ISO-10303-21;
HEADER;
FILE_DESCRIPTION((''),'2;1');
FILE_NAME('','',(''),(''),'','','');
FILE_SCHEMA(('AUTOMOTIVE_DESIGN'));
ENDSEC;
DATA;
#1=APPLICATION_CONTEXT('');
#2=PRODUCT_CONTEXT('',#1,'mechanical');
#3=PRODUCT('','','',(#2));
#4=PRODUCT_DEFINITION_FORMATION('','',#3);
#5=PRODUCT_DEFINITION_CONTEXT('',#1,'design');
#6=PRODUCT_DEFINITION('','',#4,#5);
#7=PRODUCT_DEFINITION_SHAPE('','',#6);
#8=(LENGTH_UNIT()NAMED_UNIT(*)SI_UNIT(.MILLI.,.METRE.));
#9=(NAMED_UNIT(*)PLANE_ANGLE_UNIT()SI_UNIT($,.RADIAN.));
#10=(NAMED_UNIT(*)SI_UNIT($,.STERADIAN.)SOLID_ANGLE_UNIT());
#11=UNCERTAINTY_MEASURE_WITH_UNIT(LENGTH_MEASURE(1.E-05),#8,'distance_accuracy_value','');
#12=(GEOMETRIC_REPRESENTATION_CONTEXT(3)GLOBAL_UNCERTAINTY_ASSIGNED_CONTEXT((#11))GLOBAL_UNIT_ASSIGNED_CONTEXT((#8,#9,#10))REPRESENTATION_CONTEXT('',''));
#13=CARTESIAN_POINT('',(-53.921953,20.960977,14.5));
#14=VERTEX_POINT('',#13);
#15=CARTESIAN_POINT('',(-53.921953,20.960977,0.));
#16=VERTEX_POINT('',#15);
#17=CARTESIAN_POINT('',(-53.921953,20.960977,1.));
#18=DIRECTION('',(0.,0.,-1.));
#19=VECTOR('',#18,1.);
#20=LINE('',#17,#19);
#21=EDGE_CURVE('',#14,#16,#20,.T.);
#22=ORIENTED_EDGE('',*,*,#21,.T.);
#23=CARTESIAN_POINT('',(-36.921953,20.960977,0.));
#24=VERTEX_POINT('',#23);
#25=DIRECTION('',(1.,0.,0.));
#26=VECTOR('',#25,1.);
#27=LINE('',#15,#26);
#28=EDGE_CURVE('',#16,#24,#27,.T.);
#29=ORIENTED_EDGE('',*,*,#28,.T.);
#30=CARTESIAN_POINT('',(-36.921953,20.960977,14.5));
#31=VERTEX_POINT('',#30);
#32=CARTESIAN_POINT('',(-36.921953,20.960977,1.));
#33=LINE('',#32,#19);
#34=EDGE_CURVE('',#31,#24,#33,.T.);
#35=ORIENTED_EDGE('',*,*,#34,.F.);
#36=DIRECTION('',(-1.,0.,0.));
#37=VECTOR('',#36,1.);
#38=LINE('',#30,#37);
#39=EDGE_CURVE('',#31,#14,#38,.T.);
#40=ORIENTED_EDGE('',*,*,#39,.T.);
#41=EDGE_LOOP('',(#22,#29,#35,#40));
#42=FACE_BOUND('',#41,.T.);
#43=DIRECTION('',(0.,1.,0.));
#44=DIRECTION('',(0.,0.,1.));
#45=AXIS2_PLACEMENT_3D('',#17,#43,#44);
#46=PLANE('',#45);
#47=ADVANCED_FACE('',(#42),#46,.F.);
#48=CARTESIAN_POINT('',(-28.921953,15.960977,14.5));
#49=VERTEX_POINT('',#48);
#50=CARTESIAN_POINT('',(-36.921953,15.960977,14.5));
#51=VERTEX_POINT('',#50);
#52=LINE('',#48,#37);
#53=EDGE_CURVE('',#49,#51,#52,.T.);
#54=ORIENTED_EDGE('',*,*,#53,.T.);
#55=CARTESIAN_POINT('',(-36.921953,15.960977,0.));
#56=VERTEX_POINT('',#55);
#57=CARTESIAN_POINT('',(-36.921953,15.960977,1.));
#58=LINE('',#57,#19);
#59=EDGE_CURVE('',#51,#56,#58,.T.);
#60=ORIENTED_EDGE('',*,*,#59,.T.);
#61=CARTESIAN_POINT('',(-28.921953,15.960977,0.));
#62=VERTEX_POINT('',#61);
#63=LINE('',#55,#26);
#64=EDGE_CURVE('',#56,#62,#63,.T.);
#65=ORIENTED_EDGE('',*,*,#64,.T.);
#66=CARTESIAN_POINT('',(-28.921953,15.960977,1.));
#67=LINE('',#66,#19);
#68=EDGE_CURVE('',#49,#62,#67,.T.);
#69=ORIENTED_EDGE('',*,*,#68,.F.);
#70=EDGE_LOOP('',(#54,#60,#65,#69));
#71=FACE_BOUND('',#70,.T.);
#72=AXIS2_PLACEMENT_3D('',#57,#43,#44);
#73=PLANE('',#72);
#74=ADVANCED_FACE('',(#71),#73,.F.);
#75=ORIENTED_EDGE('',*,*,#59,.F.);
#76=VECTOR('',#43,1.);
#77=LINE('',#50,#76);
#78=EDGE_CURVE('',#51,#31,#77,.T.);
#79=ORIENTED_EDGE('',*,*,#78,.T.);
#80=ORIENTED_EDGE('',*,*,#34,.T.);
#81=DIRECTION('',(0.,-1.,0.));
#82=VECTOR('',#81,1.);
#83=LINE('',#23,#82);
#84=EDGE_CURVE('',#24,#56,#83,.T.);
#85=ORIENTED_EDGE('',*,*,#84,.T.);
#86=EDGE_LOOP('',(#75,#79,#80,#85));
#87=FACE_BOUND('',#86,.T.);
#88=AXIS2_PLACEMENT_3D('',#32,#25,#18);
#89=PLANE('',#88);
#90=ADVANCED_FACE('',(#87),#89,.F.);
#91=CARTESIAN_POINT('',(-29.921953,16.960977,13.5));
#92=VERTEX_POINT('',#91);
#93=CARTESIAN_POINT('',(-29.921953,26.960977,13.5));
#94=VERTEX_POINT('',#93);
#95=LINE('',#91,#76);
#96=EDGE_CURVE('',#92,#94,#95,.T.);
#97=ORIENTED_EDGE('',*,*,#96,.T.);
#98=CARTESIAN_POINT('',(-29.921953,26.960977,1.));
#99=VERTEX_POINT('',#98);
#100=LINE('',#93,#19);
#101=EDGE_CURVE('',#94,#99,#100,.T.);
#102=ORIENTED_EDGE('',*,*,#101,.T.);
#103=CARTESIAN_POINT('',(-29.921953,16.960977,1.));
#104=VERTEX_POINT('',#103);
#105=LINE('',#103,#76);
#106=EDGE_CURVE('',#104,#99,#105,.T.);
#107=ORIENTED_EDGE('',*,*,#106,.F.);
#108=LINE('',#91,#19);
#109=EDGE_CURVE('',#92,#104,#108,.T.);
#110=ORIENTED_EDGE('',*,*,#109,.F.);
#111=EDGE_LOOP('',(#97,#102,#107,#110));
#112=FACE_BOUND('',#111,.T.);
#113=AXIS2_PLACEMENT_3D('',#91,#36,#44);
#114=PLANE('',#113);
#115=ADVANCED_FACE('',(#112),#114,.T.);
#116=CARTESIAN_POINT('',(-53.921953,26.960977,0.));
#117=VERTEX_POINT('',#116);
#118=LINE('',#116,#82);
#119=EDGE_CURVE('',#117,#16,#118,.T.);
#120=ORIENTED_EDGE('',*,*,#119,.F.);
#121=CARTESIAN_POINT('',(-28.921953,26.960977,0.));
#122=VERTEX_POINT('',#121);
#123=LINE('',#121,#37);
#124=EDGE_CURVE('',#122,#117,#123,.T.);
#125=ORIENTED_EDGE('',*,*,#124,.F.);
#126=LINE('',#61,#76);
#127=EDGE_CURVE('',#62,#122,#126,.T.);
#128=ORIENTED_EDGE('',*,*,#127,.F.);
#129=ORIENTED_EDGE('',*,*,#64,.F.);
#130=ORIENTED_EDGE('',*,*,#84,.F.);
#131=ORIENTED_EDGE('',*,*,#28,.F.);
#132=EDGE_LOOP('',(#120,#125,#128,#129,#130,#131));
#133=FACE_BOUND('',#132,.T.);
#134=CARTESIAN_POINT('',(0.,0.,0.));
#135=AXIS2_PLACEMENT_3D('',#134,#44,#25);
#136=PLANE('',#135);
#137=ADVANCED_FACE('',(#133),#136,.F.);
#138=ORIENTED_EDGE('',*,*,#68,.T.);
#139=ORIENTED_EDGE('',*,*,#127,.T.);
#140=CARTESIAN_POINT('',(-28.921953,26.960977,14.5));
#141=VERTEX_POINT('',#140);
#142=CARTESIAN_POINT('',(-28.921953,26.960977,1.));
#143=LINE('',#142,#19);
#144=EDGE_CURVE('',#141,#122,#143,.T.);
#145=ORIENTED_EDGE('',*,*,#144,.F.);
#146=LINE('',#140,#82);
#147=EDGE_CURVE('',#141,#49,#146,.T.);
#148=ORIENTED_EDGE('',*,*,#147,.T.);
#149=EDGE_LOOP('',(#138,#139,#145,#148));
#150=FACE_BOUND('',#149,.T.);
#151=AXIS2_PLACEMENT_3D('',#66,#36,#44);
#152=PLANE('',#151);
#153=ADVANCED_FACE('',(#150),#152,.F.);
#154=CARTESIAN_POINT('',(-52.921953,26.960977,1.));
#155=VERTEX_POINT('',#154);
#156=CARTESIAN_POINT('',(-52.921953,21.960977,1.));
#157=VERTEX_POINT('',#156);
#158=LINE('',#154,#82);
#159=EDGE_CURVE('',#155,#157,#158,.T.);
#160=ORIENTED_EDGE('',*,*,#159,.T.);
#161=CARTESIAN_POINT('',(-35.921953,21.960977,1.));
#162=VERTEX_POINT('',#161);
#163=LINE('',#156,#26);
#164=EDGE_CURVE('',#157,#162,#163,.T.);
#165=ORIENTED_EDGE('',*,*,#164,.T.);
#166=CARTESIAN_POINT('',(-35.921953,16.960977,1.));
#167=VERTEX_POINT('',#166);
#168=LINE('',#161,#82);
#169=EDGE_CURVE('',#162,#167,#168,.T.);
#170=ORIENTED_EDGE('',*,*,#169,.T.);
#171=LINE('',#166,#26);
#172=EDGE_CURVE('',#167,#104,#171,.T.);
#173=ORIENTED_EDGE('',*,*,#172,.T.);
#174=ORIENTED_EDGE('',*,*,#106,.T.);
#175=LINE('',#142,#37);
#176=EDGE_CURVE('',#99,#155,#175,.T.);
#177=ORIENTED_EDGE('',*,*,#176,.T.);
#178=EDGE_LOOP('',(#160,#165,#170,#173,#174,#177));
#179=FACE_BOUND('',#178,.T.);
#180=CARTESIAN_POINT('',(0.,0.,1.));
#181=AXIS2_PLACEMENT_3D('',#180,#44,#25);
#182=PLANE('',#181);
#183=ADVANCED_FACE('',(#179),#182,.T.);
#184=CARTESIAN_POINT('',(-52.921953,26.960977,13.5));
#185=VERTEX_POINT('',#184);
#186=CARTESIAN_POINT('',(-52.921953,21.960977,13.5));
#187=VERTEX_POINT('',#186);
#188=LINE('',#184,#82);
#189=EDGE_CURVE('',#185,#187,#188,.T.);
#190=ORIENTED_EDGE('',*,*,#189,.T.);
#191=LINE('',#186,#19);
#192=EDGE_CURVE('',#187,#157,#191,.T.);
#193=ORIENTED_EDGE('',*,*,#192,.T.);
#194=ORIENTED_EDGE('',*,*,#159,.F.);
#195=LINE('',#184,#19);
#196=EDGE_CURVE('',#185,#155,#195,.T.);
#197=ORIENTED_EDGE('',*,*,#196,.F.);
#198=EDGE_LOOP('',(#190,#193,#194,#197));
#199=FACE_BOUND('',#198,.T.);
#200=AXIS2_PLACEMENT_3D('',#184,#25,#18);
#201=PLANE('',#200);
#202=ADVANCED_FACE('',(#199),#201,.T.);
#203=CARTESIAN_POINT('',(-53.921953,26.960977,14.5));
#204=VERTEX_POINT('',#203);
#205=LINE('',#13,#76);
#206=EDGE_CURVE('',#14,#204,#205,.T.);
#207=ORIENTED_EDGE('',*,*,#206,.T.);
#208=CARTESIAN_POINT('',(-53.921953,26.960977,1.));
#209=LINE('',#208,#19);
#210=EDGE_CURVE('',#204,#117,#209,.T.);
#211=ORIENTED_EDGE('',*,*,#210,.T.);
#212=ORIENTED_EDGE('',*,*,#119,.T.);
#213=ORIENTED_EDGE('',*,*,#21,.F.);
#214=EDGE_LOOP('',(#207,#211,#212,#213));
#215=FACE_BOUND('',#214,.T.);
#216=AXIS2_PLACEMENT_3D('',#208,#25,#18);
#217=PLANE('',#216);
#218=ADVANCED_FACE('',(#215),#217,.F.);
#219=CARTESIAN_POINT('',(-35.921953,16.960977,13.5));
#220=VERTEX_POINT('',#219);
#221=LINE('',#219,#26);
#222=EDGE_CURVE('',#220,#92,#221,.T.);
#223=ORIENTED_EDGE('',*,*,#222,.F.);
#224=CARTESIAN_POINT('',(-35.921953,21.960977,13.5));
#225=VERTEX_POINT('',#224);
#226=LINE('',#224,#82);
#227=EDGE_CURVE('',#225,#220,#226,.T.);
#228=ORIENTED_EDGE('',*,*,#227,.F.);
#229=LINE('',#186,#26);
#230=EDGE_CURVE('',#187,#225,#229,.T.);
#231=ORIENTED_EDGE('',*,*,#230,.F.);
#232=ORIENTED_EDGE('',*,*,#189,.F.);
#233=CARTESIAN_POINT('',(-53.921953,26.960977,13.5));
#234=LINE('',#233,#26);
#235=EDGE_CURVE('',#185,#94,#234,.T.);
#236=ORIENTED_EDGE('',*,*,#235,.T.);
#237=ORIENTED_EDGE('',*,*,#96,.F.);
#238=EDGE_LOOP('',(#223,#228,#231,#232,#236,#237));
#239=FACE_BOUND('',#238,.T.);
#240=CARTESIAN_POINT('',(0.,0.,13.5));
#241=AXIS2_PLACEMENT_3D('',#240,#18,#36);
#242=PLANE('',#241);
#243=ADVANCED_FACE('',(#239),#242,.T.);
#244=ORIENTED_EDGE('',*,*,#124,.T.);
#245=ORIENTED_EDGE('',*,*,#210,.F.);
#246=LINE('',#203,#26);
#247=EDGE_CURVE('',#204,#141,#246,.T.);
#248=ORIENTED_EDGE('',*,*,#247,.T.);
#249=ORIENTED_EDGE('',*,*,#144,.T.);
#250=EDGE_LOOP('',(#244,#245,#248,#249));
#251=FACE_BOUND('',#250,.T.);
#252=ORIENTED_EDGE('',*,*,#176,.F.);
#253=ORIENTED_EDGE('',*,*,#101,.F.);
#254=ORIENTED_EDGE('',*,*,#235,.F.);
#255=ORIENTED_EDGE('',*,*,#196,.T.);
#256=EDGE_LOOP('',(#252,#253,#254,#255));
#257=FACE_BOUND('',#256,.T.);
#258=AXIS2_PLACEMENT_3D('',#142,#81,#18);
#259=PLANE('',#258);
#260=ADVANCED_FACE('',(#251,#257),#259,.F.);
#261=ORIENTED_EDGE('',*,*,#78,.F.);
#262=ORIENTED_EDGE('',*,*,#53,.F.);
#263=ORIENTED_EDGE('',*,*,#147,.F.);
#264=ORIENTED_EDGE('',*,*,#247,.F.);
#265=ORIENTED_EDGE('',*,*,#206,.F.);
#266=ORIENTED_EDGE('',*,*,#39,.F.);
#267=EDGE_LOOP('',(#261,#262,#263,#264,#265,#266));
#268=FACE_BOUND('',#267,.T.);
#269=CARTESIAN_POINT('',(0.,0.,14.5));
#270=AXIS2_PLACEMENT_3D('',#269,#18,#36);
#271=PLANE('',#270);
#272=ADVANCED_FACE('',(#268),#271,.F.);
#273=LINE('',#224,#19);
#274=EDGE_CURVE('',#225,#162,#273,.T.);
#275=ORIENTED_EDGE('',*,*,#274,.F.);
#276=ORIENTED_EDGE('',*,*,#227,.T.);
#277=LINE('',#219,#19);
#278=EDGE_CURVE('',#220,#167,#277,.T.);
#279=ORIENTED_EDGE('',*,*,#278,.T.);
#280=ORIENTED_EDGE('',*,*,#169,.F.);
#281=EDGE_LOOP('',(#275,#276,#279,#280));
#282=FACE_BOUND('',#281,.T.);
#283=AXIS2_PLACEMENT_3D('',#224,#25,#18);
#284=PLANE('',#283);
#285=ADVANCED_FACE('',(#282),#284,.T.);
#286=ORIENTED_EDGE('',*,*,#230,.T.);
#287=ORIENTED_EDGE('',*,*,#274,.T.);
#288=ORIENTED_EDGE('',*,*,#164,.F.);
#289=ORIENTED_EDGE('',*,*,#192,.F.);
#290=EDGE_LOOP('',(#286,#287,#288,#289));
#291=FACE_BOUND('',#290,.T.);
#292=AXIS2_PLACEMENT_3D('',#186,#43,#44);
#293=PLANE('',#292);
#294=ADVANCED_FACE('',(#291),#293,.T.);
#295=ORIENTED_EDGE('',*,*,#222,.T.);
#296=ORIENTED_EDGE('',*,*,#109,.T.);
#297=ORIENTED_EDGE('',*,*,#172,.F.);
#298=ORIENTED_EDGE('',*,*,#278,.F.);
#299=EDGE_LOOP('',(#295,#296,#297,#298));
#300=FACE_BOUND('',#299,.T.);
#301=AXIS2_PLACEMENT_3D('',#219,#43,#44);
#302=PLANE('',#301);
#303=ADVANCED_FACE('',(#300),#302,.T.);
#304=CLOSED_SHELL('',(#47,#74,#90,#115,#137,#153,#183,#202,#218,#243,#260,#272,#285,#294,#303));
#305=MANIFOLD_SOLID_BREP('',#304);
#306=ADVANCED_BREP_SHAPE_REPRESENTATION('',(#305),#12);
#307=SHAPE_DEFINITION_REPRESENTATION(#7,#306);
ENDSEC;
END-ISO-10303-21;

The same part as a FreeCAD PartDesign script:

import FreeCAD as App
import Part
import Sketcher

V = App.Vector

doc = App.newDocument("Part")
body = doc.addObject("PartDesign::Body", "Body")

# Sketch on XY plane
sketch1 = body.newObject("Sketcher::SketchObject", "Sketch")
sketch1.AttachmentSupport = (doc.getObject("XY_Plane"), [""])
sketch1.MapMode = "FlatFace"
sketch1.addGeometry(Part.LineSegment(V(-53.921953, 26.960977, 0), V(-53.921953, 20.960977, 0)), False)
sketch1.addGeometry(Part.LineSegment(V(-53.921953, 20.960977, 0), V(-36.921953, 20.960977, 0)), False)
sketch1.addGeometry(Part.LineSegment(V(-36.921953, 20.960977, 0), V(-36.921953, 15.960977, 0)), False)
sketch1.addGeometry(Part.LineSegment(V(-36.921953, 15.960977, 0), V(-28.921953, 15.960977, 0)), False)
sketch1.addGeometry(Part.LineSegment(V(-28.921953, 15.960977, 0), V(-28.921953, 26.960977, 0)), False)
sketch1.addGeometry(Part.LineSegment(V(-28.921953, 26.960977, 0), V(-53.921953, 26.960977, 0)), False)
sketch1.addConstraint(Sketcher.Constraint("Coincident", 0, 2, 1, 1))
sketch1.addConstraint(Sketcher.Constraint("Coincident", 1, 2, 2, 1))
sketch1.addConstraint(Sketcher.Constraint("Coincident", 2, 2, 3, 1))
sketch1.addConstraint(Sketcher.Constraint("Coincident", 3, 2, 4, 1))
sketch1.addConstraint(Sketcher.Constraint("Coincident", 4, 2, 5, 1))
sketch1.addConstraint(Sketcher.Constraint("Coincident", 5, 2, 0, 1))
sketch1.addConstraint(Sketcher.Constraint("Vertical", 0))
sketch1.addConstraint(Sketcher.Constraint("Horizontal", 1))
sketch1.addConstraint(Sketcher.Constraint("Vertical", 2))
sketch1.addConstraint(Sketcher.Constraint("Horizontal", 3))
sketch1.addConstraint(Sketcher.Constraint("Vertical", 4))
sketch1.addConstraint(Sketcher.Constraint("Horizontal", 5))
sketch1.addConstraint(Sketcher.Constraint("DistanceX", 1, 1, 1, 2, 17.0))
sketch1.addConstraint(Sketcher.Constraint("DistanceX", 3, 1, 3, 2, 8.0))
sketch1.addConstraint(Sketcher.Constraint("DistanceY", 0, 2, 0, 1, 6.0))
sketch1.addConstraint(Sketcher.Constraint("DistanceY", 2, 2, 2, 1, 5.0))
sketch1.addConstraint(Sketcher.Constraint("DistanceX", 0, 2, -1, 1, 53.921953))
sketch1.addConstraint(Sketcher.Constraint("DistanceY", -1, 1, 0, 2, 20.960977))
pad1 = body.newObject("PartDesign::Pad", "Pad")
pad1.Profile = sketch1
pad1.Length = 1

# Sketch on XY plane
sketch2 = body.newObject("Sketcher::SketchObject", "Sketch001")
sketch2.AttachmentSupport = (doc.getObject("XY_Plane"), [""])
sketch2.MapMode = "FlatFace"
sketch2.AttachmentOffset = App.Placement(V(0, 0, 1), App.Rotation())
sketch2.addGeometry(Part.LineSegment(V(-52.921953, 26.960977, 0), V(-53.921953, 26.960977, 0)), False)
sketch2.addGeometry(Part.LineSegment(V(-53.921953, 26.960977, 0), V(-53.921953, 20.960977, 0)), False)
sketch2.addGeometry(Part.LineSegment(V(-53.921953, 20.960977, 0), V(-36.921953, 20.960977, 0)), False)
sketch2.addGeometry(Part.LineSegment(V(-36.921953, 20.960977, 0), V(-36.921953, 15.960977, 0)), False)
sketch2.addGeometry(Part.LineSegment(V(-36.921953, 15.960977, 0), V(-28.921953, 15.960977, 0)), False)
sketch2.addGeometry(Part.LineSegment(V(-28.921953, 15.960977, 0), V(-28.921953, 26.960977, 0)), False)
sketch2.addGeometry(Part.LineSegment(V(-28.921953, 26.960977, 0), V(-29.921953, 26.960977, 0)), False)
sketch2.addGeometry(Part.LineSegment(V(-29.921953, 26.960977, 0), V(-29.921953, 16.960977, 0)), False)
sketch2.addGeometry(Part.LineSegment(V(-29.921953, 16.960977, 0), V(-35.921953, 16.960977, 0)), False)
sketch2.addGeometry(Part.LineSegment(V(-35.921953, 16.960977, 0), V(-35.921953, 21.960977, 0)), False)
sketch2.addGeometry(Part.LineSegment(V(-35.921953, 21.960977, 0), V(-52.921953, 21.960977, 0)), False)
sketch2.addGeometry(Part.LineSegment(V(-52.921953, 21.960977, 0), V(-52.921953, 26.960977, 0)), False)
sketch2.addConstraint(Sketcher.Constraint("Coincident", 0, 2, 1, 1))
sketch2.addConstraint(Sketcher.Constraint("Coincident", 1, 2, 2, 1))
sketch2.addConstraint(Sketcher.Constraint("Coincident", 2, 2, 3, 1))
sketch2.addConstraint(Sketcher.Constraint("Coincident", 3, 2, 4, 1))
sketch2.addConstraint(Sketcher.Constraint("Coincident", 4, 2, 5, 1))
sketch2.addConstraint(Sketcher.Constraint("Coincident", 5, 2, 6, 1))
sketch2.addConstraint(Sketcher.Constraint("Coincident", 6, 2, 7, 1))
sketch2.addConstraint(Sketcher.Constraint("Coincident", 7, 2, 8, 1))
sketch2.addConstraint(Sketcher.Constraint("Coincident", 8, 2, 9, 1))
sketch2.addConstraint(Sketcher.Constraint("Coincident", 9, 2, 10, 1))
sketch2.addConstraint(Sketcher.Constraint("Coincident", 10, 2, 11, 1))
sketch2.addConstraint(Sketcher.Constraint("Coincident", 11, 2, 0, 1))
sketch2.addConstraint(Sketcher.Constraint("Horizontal", 0))
sketch2.addConstraint(Sketcher.Constraint("Vertical", 1))
sketch2.addConstraint(Sketcher.Constraint("Horizontal", 2))
sketch2.addConstraint(Sketcher.Constraint("Vertical", 3))
sketch2.addConstraint(Sketcher.Constraint("Horizontal", 4))
sketch2.addConstraint(Sketcher.Constraint("Vertical", 5))
sketch2.addConstraint(Sketcher.Constraint("Horizontal", 6))
sketch2.addConstraint(Sketcher.Constraint("Vertical", 7))
sketch2.addConstraint(Sketcher.Constraint("Horizontal", 8))
sketch2.addConstraint(Sketcher.Constraint("Vertical", 9))
sketch2.addConstraint(Sketcher.Constraint("Horizontal", 10))
sketch2.addConstraint(Sketcher.Constraint("Vertical", 11))
sketch2.addConstraint(Sketcher.Constraint("Horizontal", 0, 2, 5, 2))
sketch2.addConstraint(Sketcher.Constraint("Equal", 0, 6))
sketch2.addConstraint(Sketcher.Constraint("Equal", 2, 10))
sketch2.addConstraint(Sketcher.Constraint("Equal", 8, 1))
sketch2.addConstraint(Sketcher.Constraint("Equal", 3, 9))
sketch2.addConstraint(Sketcher.Constraint("Equal", 9, 11))
sketch2.addConstraint(Sketcher.Constraint("DistanceX", 0, 2, 0, 1, 1.0))
sketch2.addConstraint(Sketcher.Constraint("DistanceX", 2, 1, 2, 2, 17.0))
sketch2.addConstraint(Sketcher.Constraint("DistanceX", 4, 1, 4, 2, 8.0))
sketch2.addConstraint(Sketcher.Constraint("DistanceY", 3, 2, 3, 1, 5.0))
sketch2.addConstraint(Sketcher.Constraint("DistanceX", 0, 2, -1, 1, 53.921953))
sketch2.addConstraint(Sketcher.Constraint("DistanceY", -1, 1, 0, 2, 26.960977))
pad2 = body.newObject("PartDesign::Pad", "Pad001")
pad2.Profile = sketch2
pad2.Length = 12.5

# Sketch on XY plane
sketch3 = body.newObject("Sketcher::SketchObject", "Sketch002")
sketch3.AttachmentSupport = (doc.getObject("XY_Plane"), [""])
sketch3.MapMode = "FlatFace"
sketch3.AttachmentOffset = App.Placement(V(0, 0, 13.5), App.Rotation())
sketch3.addGeometry(Part.LineSegment(V(-28.921953, 26.960977, 0), V(-53.921953, 26.960977, 0)), False)
sketch3.addGeometry(Part.LineSegment(V(-53.921953, 26.960977, 0), V(-53.921953, 20.960977, 0)), False)
sketch3.addGeometry(Part.LineSegment(V(-53.921953, 20.960977, 0), V(-36.921953, 20.960977, 0)), False)
sketch3.addGeometry(Part.LineSegment(V(-36.921953, 20.960977, 0), V(-36.921953, 15.960977, 0)), False)
sketch3.addGeometry(Part.LineSegment(V(-36.921953, 15.960977, 0), V(-28.921953, 15.960977, 0)), False)
sketch3.addGeometry(Part.LineSegment(V(-28.921953, 15.960977, 0), V(-28.921953, 26.960977, 0)), False)
sketch3.addConstraint(Sketcher.Constraint("Coincident", 0, 2, 1, 1))
sketch3.addConstraint(Sketcher.Constraint("Coincident", 1, 2, 2, 1))
sketch3.addConstraint(Sketcher.Constraint("Coincident", 2, 2, 3, 1))
sketch3.addConstraint(Sketcher.Constraint("Coincident", 3, 2, 4, 1))
sketch3.addConstraint(Sketcher.Constraint("Coincident", 4, 2, 5, 1))
sketch3.addConstraint(Sketcher.Constraint("Coincident", 5, 2, 0, 1))
sketch3.addConstraint(Sketcher.Constraint("Horizontal", 0))
sketch3.addConstraint(Sketcher.Constraint("Vertical", 1))
sketch3.addConstraint(Sketcher.Constraint("Horizontal", 2))
sketch3.addConstraint(Sketcher.Constraint("Vertical", 3))
sketch3.addConstraint(Sketcher.Constraint("Horizontal", 4))
sketch3.addConstraint(Sketcher.Constraint("Vertical", 5))
sketch3.addConstraint(Sketcher.Constraint("DistanceX", 0, 2, 0, 1, 25.0))
sketch3.addConstraint(Sketcher.Constraint("DistanceX", 2, 1, 2, 2, 17.0))
sketch3.addConstraint(Sketcher.Constraint("DistanceY", 1, 2, 1, 1, 6.0))
sketch3.addConstraint(Sketcher.Constraint("DistanceY", 3, 2, 3, 1, 5.0))
sketch3.addConstraint(Sketcher.Constraint("DistanceX", 0, 2, -1, 1, 53.921953))
sketch3.addConstraint(Sketcher.Constraint("DistanceY", -1, 1, 0, 2, 26.960977))
pad3 = body.newObject("PartDesign::Pad", "Pad002")
pad3.Profile = sketch3
pad3.Length = 1

doc.recompute()
